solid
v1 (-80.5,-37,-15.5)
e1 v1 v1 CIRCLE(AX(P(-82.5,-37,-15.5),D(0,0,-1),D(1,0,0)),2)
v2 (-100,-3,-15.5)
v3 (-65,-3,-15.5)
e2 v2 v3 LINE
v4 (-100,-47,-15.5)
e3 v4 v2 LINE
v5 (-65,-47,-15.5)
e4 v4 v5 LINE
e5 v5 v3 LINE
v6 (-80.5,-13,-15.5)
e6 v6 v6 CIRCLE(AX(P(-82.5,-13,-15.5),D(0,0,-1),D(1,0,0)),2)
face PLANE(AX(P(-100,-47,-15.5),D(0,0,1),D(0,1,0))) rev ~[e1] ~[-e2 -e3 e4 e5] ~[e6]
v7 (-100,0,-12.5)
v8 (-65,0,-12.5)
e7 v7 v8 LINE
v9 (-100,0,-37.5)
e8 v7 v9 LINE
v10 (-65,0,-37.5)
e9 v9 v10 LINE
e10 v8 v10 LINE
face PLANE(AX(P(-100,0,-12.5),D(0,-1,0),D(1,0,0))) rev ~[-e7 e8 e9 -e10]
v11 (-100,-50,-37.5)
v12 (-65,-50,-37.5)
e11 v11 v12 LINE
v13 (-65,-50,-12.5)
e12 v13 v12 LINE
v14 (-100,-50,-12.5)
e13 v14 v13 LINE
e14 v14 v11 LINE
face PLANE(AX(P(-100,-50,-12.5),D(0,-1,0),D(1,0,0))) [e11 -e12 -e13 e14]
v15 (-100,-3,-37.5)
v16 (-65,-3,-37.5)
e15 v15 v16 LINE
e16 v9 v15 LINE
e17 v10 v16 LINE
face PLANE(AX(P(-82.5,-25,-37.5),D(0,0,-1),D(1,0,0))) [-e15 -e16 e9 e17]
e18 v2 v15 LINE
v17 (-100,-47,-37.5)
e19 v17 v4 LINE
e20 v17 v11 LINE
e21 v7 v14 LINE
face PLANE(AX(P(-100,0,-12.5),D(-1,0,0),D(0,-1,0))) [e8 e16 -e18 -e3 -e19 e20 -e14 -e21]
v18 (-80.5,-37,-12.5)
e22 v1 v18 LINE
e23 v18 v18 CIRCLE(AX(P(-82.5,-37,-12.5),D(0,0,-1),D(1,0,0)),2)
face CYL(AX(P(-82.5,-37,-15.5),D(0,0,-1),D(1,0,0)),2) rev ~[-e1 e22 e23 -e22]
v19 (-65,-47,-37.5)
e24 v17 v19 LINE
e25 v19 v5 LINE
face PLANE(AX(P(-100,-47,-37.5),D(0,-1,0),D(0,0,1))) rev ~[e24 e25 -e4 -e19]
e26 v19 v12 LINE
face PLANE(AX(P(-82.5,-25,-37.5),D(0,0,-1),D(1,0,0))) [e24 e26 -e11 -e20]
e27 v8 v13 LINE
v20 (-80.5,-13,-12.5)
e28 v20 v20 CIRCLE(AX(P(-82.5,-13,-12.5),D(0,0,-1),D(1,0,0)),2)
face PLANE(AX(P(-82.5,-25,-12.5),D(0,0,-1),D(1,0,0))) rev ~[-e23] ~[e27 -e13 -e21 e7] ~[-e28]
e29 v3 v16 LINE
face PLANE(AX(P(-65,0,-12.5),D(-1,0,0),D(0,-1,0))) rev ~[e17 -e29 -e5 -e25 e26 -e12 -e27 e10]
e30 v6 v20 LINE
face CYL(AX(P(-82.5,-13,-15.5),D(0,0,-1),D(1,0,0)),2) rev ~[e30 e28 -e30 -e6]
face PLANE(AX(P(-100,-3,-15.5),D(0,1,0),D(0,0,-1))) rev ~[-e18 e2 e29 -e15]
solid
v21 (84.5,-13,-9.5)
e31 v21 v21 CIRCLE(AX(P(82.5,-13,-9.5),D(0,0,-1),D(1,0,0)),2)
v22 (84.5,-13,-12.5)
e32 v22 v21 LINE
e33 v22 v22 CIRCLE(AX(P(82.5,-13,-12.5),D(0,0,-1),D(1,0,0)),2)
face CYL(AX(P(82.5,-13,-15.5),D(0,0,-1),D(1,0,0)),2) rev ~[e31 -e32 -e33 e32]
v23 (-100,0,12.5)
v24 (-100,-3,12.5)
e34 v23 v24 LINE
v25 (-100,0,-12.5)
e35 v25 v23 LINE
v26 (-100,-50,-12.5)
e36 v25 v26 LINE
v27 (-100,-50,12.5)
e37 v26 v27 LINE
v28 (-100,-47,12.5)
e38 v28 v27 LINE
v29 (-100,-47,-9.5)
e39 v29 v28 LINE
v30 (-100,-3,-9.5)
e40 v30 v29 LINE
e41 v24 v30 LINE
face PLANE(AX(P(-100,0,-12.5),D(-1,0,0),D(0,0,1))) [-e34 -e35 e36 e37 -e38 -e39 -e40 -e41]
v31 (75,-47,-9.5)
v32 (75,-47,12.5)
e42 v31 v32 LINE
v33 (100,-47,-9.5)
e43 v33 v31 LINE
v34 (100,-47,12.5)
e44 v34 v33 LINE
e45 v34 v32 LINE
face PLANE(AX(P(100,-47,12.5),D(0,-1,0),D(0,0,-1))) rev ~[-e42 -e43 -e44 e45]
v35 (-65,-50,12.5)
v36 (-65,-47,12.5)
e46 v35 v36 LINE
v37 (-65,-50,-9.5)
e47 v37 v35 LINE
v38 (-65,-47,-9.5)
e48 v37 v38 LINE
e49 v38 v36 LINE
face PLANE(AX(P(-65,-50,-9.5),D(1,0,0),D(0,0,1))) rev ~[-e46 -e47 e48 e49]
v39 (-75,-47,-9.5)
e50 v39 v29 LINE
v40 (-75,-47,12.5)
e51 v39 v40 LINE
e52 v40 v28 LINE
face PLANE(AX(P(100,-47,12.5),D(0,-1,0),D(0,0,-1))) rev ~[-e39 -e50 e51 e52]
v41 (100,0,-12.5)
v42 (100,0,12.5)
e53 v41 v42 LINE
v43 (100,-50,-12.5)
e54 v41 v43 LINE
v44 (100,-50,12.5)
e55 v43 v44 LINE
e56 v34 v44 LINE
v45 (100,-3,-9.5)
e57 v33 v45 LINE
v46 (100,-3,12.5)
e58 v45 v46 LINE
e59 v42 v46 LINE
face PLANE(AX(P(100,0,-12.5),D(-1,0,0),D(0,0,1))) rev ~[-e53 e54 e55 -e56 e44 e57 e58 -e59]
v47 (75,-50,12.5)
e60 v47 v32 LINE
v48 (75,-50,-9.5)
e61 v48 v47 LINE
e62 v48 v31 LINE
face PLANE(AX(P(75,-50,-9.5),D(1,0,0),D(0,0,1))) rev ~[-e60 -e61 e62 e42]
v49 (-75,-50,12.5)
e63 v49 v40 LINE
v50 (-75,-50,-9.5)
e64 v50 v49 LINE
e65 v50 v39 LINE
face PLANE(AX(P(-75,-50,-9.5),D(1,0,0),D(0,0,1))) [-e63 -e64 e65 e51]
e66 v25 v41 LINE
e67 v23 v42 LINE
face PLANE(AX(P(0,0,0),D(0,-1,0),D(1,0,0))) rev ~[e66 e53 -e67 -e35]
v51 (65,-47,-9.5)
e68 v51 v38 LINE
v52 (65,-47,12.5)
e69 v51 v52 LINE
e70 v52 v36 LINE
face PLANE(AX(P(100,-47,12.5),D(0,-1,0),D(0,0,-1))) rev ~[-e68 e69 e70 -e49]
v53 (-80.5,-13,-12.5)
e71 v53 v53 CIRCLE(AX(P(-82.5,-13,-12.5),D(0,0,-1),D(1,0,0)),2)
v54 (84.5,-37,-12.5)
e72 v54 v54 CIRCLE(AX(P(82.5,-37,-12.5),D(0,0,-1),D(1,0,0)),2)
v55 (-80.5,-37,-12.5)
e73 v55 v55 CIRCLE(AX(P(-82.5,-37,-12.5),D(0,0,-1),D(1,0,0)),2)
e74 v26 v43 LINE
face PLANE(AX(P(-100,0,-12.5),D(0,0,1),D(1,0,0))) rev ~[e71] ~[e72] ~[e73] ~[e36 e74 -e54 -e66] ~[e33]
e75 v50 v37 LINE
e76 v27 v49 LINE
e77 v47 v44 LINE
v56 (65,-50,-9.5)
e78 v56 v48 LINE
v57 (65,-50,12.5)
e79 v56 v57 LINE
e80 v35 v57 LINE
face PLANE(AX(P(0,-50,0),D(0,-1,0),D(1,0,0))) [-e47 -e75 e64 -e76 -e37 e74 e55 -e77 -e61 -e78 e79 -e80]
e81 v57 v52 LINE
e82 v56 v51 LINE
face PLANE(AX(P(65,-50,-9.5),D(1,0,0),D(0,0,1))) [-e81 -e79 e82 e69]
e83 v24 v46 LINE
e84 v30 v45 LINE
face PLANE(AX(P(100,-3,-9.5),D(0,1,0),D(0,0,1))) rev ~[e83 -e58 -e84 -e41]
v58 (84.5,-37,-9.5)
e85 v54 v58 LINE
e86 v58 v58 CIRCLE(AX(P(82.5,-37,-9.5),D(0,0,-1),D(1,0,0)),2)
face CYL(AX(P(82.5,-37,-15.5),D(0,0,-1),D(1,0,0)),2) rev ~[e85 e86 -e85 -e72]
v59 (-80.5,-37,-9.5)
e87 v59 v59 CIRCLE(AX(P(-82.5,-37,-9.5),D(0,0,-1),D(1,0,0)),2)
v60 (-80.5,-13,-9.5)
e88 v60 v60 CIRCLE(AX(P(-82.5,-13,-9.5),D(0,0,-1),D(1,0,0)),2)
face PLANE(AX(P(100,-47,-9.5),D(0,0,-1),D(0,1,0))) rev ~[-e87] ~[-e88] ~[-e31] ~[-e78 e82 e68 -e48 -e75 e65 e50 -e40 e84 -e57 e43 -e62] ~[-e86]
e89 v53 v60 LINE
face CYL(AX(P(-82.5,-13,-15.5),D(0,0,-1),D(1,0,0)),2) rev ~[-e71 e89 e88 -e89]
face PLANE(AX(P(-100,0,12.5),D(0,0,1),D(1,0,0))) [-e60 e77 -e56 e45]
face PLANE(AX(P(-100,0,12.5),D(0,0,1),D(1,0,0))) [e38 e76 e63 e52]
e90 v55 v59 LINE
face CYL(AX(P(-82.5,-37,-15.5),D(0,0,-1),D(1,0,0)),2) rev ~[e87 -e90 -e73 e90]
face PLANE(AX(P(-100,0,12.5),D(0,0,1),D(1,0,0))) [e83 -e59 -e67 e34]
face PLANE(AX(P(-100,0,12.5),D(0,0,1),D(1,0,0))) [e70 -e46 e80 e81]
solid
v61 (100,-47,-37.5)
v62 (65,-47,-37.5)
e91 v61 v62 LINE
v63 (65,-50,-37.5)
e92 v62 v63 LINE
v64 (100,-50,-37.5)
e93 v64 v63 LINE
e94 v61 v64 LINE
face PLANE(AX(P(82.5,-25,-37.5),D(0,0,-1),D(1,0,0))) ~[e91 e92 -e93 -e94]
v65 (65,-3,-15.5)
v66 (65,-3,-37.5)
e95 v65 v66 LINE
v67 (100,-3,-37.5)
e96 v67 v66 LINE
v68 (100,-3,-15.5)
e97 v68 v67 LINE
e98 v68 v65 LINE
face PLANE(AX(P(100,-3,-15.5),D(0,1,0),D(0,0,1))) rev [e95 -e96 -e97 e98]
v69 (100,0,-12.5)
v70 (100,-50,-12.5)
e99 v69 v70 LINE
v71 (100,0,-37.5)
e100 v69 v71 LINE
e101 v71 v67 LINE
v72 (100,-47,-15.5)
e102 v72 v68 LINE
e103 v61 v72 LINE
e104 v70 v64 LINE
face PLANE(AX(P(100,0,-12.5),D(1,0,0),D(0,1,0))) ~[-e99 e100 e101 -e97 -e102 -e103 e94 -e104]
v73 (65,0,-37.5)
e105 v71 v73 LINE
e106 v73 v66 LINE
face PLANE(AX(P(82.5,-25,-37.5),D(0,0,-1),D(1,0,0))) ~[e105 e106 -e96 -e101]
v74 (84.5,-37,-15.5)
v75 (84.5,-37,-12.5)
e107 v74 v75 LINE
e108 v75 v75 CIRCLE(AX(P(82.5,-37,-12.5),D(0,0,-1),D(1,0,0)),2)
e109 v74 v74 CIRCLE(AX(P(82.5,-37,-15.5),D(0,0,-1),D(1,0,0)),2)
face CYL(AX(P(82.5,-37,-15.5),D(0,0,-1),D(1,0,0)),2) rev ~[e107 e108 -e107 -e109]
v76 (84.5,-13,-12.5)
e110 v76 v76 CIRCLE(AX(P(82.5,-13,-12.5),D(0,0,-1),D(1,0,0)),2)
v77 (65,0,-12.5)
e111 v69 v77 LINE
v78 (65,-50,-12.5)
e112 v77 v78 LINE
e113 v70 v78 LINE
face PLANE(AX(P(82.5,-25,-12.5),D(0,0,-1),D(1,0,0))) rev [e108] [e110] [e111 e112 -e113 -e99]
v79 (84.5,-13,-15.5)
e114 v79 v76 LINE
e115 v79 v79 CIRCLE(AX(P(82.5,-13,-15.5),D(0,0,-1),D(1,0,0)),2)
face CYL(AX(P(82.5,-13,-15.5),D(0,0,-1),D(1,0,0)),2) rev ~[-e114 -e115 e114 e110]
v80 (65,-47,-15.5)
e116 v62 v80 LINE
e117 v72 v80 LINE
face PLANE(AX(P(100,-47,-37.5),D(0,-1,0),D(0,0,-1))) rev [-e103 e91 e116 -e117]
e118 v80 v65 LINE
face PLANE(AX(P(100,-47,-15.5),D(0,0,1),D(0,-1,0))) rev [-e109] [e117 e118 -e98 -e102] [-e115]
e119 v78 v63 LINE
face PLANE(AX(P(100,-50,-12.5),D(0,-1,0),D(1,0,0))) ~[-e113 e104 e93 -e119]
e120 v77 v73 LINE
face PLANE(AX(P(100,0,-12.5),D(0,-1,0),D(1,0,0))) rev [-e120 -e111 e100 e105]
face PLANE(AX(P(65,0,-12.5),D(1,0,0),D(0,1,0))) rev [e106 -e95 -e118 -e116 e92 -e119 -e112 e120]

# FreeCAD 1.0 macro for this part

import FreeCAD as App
import Part
import Sketcher
from FreeCAD import Vector
Q = App.Units.Quantity

doc = App.newDocument("Part")
body = doc.addObject("PartDesign::Body", "Body")

# Sketch on XZ plane
sketch1 = doc.addObject("Sketcher::SketchObject", "Sketch")
body.addObject(sketch1)
sketch1.AttachmentSupport = (doc.XZ_Plane, [""])
sketch1.MapMode = "FlatFace"
sketch1.addGeometry([
    Part.LineSegment(Vector(-100, 12, 0), Vector(-100, -12, 0)),
    Part.LineSegment(Vector(-100, -12, 0), Vector(100, -12, 0)),
    Part.LineSegment(Vector(100, -12, 0), Vector(100, 12, 0)),
    Part.LineSegment(Vector(100, 12, 0), Vector(-100, 12, 0)),
], False)
sketch1.addConstraint([
    Sketcher.Constraint("Coincident", 0, 2, 1, 1),
    Sketcher.Constraint("Coincident", 1, 2, 2, 1),
    Sketcher.Constraint("Coincident", 2, 2, 3, 1),
    Sketcher.Constraint("Coincident", 3, 2, 0, 1),
    Sketcher.Constraint("Vertical", 0),
    Sketcher.Constraint("Horizontal", 1),
    Sketcher.Constraint("Vertical", 2),
    Sketcher.Constraint("Horizontal", 3),
    Sketcher.Constraint("Symmetric", 0, 2, 2, 2, -1, 1),
    Sketcher.Constraint("DistanceX", 1, 1, 1, 2, Q("200 mm")),
    Sketcher.Constraint("DistanceY", 0, 2, 0, 1, Q("25 mm")),
])
pad1 = doc.addObject("PartDesign::Pad", "Pad")
body.addObject(pad1)
pad1.Profile = sketch1
pad1.Length = 50

# Sketch on YZ plane
sketch2 = doc.addObject("Sketcher::SketchObject", "Sketch001")
body.addObject(sketch2)
sketch2.AttachmentSupport = (doc.YZ_Plane, [""])
sketch2.MapMode = "FlatFace"
sketch2.AttachmentOffset = App.Placement(Vector(0, 0, 100), App.Rotation())
sketch2.addGeometry([
    Part.LineSegment(Vector(-3, 12, 0), Vector(-47, 12, 0)),
    Part.LineSegment(Vector(-47, 12, 0), Vector(-47, -10, 0)),
    Part.LineSegment(Vector(-47, -10, 0), Vector(-3, -10, 0)),
    Part.LineSegment(Vector(-3, -10, 0), Vector(-3, 12, 0)),
], False)
sketch2.addConstraint([
    Sketcher.Constraint("Coincident", 0, 2, 1, 1),
    Sketcher.Constraint("Coincident", 1, 2, 2, 1),
    Sketcher.Constraint("Coincident", 2, 2, 3, 1),
    Sketcher.Constraint("Coincident", 3, 2, 0, 1),
    Sketcher.Constraint("Horizontal", 0),
    Sketcher.Constraint("Vertical", 1),
    Sketcher.Constraint("Horizontal", 2),
    Sketcher.Constraint("Vertical", 3),
    Sketcher.Constraint("DistanceX", 0, 2, 0, 1, Q("44 mm")),
    Sketcher.Constraint("DistanceY", 1, 2, 1, 1, Q("22 mm")),
    Sketcher.Constraint("DistanceX", 0, 2, -1, 1, Q("47 mm")),
    Sketcher.Constraint("DistanceY", -1, 1, 0, 2, Q("12.5 mm")),
])
pocket1 = doc.addObject("PartDesign::Pocket", "Pocket")
body.addObject(pocket1)
pocket1.Profile = sketch2
pocket1.Type = "ThroughAll"

# Sketch on XZ plane
sketch3 = doc.addObject("Sketcher::SketchObject", "Sketch002")
body.addObject(sketch3)
sketch3.AttachmentSupport = (doc.XZ_Plane, [""])
sketch3.MapMode = "FlatFace"
sketch3.AttachmentOffset = App.Placement(Vector(0, 0, 50), App.Rotation())
sketch3.addGeometry([
    Part.LineSegment(Vector(-75, 12, 0), Vector(-75, -10, 0)),  # 0
    Part.LineSegment(Vector(-75, -10, 0), Vector(-65, -10, 0)),  # 1
    Part.LineSegment(Vector(-65, -10, 0), Vector(-65, 12, 0)),  # 2
    Part.LineSegment(Vector(-65, 12, 0), Vector(-75, 12, 0)),  # 3
    Part.LineSegment(Vector(65, 12, 0), Vector(65, -10, 0)),  # 4
    Part.LineSegment(Vector(65, -10, 0), Vector(75, -10, 0)),  # 5
    Part.LineSegment(Vector(75, -10, 0), Vector(75, 12, 0)),  # 6
    Part.LineSegment(Vector(75, 12, 0), Vector(65, 12, 0)),  # 7
], False)
sketch3.addConstraint([
    Sketcher.Constraint("Coincident", 0, 2, 1, 1),
    Sketcher.Constraint("Coincident", 1, 2, 2, 1),
    Sketcher.Constraint("Coincident", 2, 2, 3, 1),
    Sketcher.Constraint("Coincident", 3, 2, 0, 1),
    Sketcher.Constraint("Coincident", 4, 2, 5, 1),
    Sketcher.Constraint("Coincident", 5, 2, 6, 1),
    Sketcher.Constraint("Coincident", 6, 2, 7, 1),
    Sketcher.Constraint("Coincident", 7, 2, 4, 1),
    Sketcher.Constraint("Vertical", 0),
    Sketcher.Constraint("Horizontal", 1),
    Sketcher.Constraint("Vertical", 2),
    Sketcher.Constraint("Horizontal", 3),
    Sketcher.Constraint("Vertical", 4),
    Sketcher.Constraint("Horizontal", 5),
    Sketcher.Constraint("Vertical", 6),
    Sketcher.Constraint("Horizontal", 7),
    Sketcher.Constraint("Symmetric", 1, 2, 4, 2, -2),
    Sketcher.Constraint("Symmetric", 3, 2, 6, 2, -2),
    Sketcher.Constraint("DistanceX", 1, 1, 1, 2, Q("10 mm")),
    Sketcher.Constraint("DistanceY", 0, 2, 0, 1, Q("22 mm")),
    Sketcher.Constraint("DistanceX", 0, 2, -1, 1, Q("75 mm")),
    Sketcher.Constraint("DistanceY", 0, 2, -1, 1, Q("9.5 mm")),
])
pocket2 = doc.addObject("PartDesign::Pocket", "Pocket001")
body.addObject(pocket2)
pocket2.Profile = sketch3
pocket2.Length = 47
body2 = doc.addObject("PartDesign::Body", "Body001")

# Sketch on XY plane
sketch4 = doc.addObject("Sketcher::SketchObject", "Sketch003")
body2.addObject(sketch4)
sketch4.AttachmentSupport = (doc.getObject("XY_Plane001"), [""])
sketch4.MapMode = "FlatFace"
sketch4.AttachmentOffset = App.Placement(Vector(0, 0, -12.5), App.Rotation())
sketch4.addGeometry([
    Part.LineSegment(Vector(-100, -50, 0), Vector(-100, 0, 0)),
    Part.LineSegment(Vector(-100, 0, 0), Vector(-65, 0, 0)),
    Part.LineSegment(Vector(-65, 0, 0), Vector(-65, -50, 0)),
    Part.LineSegment(Vector(-65, -50, 0), Vector(-100, -50, 0)),
], False)
sketch4.addConstraint([
    Sketcher.Constraint("Coincident", 0, 2, 1, 1),
    Sketcher.Constraint("Coincident", 1, 2, 2, 1),
    Sketcher.Constraint("Coincident", 2, 2, 3, 1),
    Sketcher.Constraint("Coincident", 3, 2, 0, 1),
    Sketcher.Constraint("Vertical", 0),
    Sketcher.Constraint("Horizontal", 1),
    Sketcher.Constraint("Vertical", 2),
    Sketcher.Constraint("Horizontal", 3),
    Sketcher.Constraint("PointOnObject", 0, 2, -1),
    Sketcher.Constraint("DistanceX", 1, 1, 1, 2, Q("35 mm")),
    Sketcher.Constraint("DistanceY", 0, 1, 0, 2, Q("50 mm")),
    Sketcher.Constraint("DistanceX", 0, 2, -1, 1, Q("100 mm")),
])
pad2 = doc.addObject("PartDesign::Pad", "Pad001")
body2.addObject(pad2)
pad2.Profile = sketch4
pad2.Length = 25
pad2.Reversed = True

# Sketch on YZ plane
sketch5 = doc.addObject("Sketcher::SketchObject", "Sketch004")
body2.addObject(sketch5)
sketch5.AttachmentSupport = (doc.getObject("YZ_Plane001"), [""])
sketch5.MapMode = "FlatFace"
sketch5.AttachmentOffset = App.Placement(Vector(0, 0, -100), App.Rotation())
sketch5.addGeometry([
    Part.LineSegment(Vector(-3, -38, 0), Vector(-47, -38, 0)),
    Part.LineSegment(Vector(-47, -38, 0), Vector(-47, -16, 0)),
    Part.LineSegment(Vector(-47, -16, 0), Vector(-3, -16, 0)),
    Part.LineSegment(Vector(-3, -16, 0), Vector(-3, -38, 0)),
], False)
sketch5.addConstraint([
    Sketcher.Constraint("Coincident", 0, 2, 1, 1),
    Sketcher.Constraint("Coincident", 1, 2, 2, 1),
    Sketcher.Constraint("Coincident", 2, 2, 3, 1),
    Sketcher.Constraint("Coincident", 3, 2, 0, 1),
    Sketcher.Constraint("Horizontal", 0),
    Sketcher.Constraint("Vertical", 1),
    Sketcher.Constraint("Horizontal", 2),
    Sketcher.Constraint("Vertical", 3),
    Sketcher.Constraint("DistanceX", 0, 2, 0, 1, Q("44 mm")),
    Sketcher.Constraint("DistanceY", 1, 1, 1, 2, Q("22 mm")),
    Sketcher.Constraint("DistanceX", 0, 2, -1, 1, Q("47 mm")),
    Sketcher.Constraint("DistanceY", 0, 2, -1, 1, Q("37.5 mm")),
])
pocket3 = doc.addObject("PartDesign::Pocket", "Pocket002")
body2.addObject(pocket3)
pocket3.Profile = sketch5
pocket3.Type = "ThroughAll"
pocket3.Reversed = True
body3 = doc.addObject("PartDesign::Body", "Body002")
doc.recompute()

mirroring = doc.addObject("Part::Mirroring", "Mirroring")
mirroring.Source = body2
mirroring.Base = Vector(0, 0, 0)
mirroring.Normal = Vector(1, 0, 0)
body3.BaseFeature = mirroring
doc.recompute()
body4 = doc.addObject("PartDesign::Body", "Body003")
body4.AllowCompound = True

# Sketch on XY plane
sketch6 = doc.addObject("Sketcher::SketchObject", "Sketch005")
body4.addObject(sketch6)
sketch6.AttachmentSupport = (doc.getObject("XY_Plane003"), [""])
sketch6.MapMode = "FlatFace"
sketch6.AttachmentOffset = App.Placement(Vector(0, 0, -15.5), App.Rotation())
sketch6.addGeometry([
    Part.Circle(Vector(-82.5, -37, 0), Vector(0, 0, 1), 2),
    Part.Circle(Vector(-82.5, -13, 0), Vector(0, 0, 1), 2),
    Part.Circle(Vector(82.5, -13, 0), Vector(0, 0, 1), 2),
    Part.Circle(Vector(82.5, -37, 0), Vector(0, 0, 1), 2),
], False)
sketch6.addConstraint([
    Sketcher.Constraint("Equal", 0, 1),
    Sketcher.Constraint("Equal", 1, 2),
    Sketcher.Constraint("Equal", 2, 3),
    Sketcher.Constraint("Symmetric", 1, 3, 2, 3, -2),
    Sketcher.Constraint("Symmetric", 0, 3, 3, 3, -2),
    Sketcher.Constraint("Vertical", 0, 3, 1, 3),
    Sketcher.Constraint("Diameter", 0, Q("4 mm")),
    Sketcher.Constraint("DistanceY", 0, 3, -1, 1, Q("37 mm")),
    Sketcher.Constraint("DistanceY", 1, 3, -1, 1, Q("13 mm")),
    Sketcher.Constraint("DistanceX", 1, 3, 2, 3, Q("165 mm")),
])
pad3 = doc.addObject("PartDesign::Pad", "Pad002")
body4.addObject(pad3)
pad3.Profile = sketch6
pad3.Length = 28.001
doc.recompute()

body5 = doc.addObject("PartDesign::Body", "Body004")
body5.BaseFeature = body4
boolean = doc.addObject("PartDesign::Boolean", "Boolean")
body.addObject(boolean)
boolean.Type = "Cut"
boolean.addObjects([body5])
doc.recompute()

body6 = doc.addObject("PartDesign::Body", "Body005")
body6.BaseFeature = body4
boolean2 = doc.addObject("PartDesign::Boolean", "Boolean001")
body2.addObject(boolean2)
boolean2.Type = "Cut"
boolean2.addObjects([body6])
doc.recompute()

boolean3 = doc.addObject("PartDesign::Boolean", "Boolean002")
body3.addObject(boolean3)
boolean3.Type = "Cut"
boolean3.addObjects([body4])
mirroring.Visibility = False

doc.recompute()
